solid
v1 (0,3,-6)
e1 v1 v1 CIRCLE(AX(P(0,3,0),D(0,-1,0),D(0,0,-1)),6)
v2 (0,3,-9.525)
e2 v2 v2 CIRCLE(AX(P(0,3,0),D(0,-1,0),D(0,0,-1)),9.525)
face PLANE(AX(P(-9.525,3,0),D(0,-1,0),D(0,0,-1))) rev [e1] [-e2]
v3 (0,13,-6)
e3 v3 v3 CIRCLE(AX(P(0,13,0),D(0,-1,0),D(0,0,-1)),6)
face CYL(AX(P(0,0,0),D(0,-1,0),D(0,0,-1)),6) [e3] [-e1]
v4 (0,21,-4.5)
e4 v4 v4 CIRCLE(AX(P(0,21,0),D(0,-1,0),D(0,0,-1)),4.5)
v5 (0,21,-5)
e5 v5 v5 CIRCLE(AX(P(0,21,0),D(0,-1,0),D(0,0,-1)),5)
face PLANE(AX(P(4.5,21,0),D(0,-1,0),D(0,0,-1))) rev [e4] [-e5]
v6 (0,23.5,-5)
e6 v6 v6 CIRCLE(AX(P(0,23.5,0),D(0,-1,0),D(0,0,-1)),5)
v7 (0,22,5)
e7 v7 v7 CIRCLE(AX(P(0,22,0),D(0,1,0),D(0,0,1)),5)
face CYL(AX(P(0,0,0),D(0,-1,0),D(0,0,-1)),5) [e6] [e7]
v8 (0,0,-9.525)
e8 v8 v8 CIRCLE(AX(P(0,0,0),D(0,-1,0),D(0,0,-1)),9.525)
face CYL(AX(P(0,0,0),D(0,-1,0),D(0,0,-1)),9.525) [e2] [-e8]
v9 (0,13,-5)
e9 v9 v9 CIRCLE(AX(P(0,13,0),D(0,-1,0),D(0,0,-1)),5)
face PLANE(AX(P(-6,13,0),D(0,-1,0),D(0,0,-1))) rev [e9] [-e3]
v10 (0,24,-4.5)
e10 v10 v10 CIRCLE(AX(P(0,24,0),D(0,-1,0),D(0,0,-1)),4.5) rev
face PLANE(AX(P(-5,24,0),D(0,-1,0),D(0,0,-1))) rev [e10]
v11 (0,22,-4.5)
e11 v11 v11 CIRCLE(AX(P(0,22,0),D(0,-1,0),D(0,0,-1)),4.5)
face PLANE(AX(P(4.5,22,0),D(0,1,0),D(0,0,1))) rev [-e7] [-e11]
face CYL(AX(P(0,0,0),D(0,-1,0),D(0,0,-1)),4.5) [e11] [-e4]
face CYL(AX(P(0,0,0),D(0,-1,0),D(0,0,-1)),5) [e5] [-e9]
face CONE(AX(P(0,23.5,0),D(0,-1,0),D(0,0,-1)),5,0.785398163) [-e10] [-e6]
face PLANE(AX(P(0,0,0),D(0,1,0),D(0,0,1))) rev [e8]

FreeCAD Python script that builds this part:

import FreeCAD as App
import Part
import Sketcher

V = App.Vector
Q = App.Units.Quantity


def edges_at(feature, points):
    """Names of the edges that pass closest to the given points."""
    edges = feature.Shape.Edges
    near = lambda p: min(range(len(edges)), key=lambda i: edges[i].distToShape(Part.Vertex(*p))[0])
    return sorted({f"Edge{near(p) + 1}" for p in points})


def add_polygon(sketch, points):
    """Adds a closed chain of lines whose ends are joined by coincident constraints."""
    first, n = sketch.GeometryCount, len(points)
    for a, b in zip(points, points[1:] + points[:1]):
        sketch.addGeometry(Part.LineSegment(App.Vector(*a, 0), App.Vector(*b, 0)), False)
    for i in range(n):
        sketch.addConstraint(Sketcher.Constraint("Coincident", first + i, 2, first + (i + 1) % n, 1))

doc = App.newDocument("Part")
body = doc.addObject("PartDesign::Body", "Body")

# Sketch on XY plane
sketch1 = doc.addObject("Sketcher::SketchObject", "Sketch")
body.addObject(sketch1)
sketch1.AttachmentSupport = (doc.XY_Plane, [""])
sketch1.MapMode = "FlatFace"
add_polygon(sketch1, [(-9.5, 0), (0, 0), (0, 24), (-5, 24), (-5, 13), (-6, 13), (-6, 3), (-9.5, 3)])  # lines 0-7
sketch1.addConstraint(Sketcher.Constraint("Horizontal", 0))
sketch1.addConstraint(Sketcher.Constraint("Vertical", 1))
sketch1.addConstraint(Sketcher.Constraint("Horizontal", 2))
sketch1.addConstraint(Sketcher.Constraint("Vertical", 3))
sketch1.addConstraint(Sketcher.Constraint("Horizontal", 4))
sketch1.addConstraint(Sketcher.Constraint("Vertical", 5))
sketch1.addConstraint(Sketcher.Constraint("Horizontal", 6))
sketch1.addConstraint(Sketcher.Constraint("Vertical", 7))
sketch1.addConstraint(Sketcher.Constraint("Coincident", 0, 2, -1, 1))
sketch1.addConstraint(Sketcher.Constraint("DistanceX", 2, 2, 2, 1, Q("5 mm")))
sketch1.addConstraint(Sketcher.Constraint("DistanceX", 4, 2, 4, 1, Q("1 mm")))
sketch1.addConstraint(Sketcher.Constraint("DistanceY", 1, 1, 1, 2, Q("24 mm")))
sketch1.addConstraint(Sketcher.Constraint("DistanceY", 3, 2, 3, 1, Q("11 mm")))
sketch1.addConstraint(Sketcher.Constraint("DistanceY", 5, 2, 5, 1, Q("10 mm")))
sketch1.addConstraint(Sketcher.Constraint("DistanceX", 0, 1, 0, 2, Q("9.525 mm")))
revolution = doc.addObject("PartDesign::Revolution", "Revolution")
body.addObject(revolution)
revolution.Profile = sketch1
revolution.ReferenceAxis = (sketch1, ["V_Axis"])
revolution.Angle = 360

# Sketch on XY plane
sketch2 = doc.addObject("Sketcher::SketchObject", "Sketch001")
body.addObject(sketch2)
sketch2.AttachmentSupport = (doc.XY_Plane, [""])
sketch2.MapMode = "FlatFace"
add_polygon(sketch2, [(4.5, 22), (4.5, 21), (5.5, 21), (5.5, 22)])  # lines 0-3
sketch2.addConstraint(Sketcher.Constraint("Vertical", 0))
sketch2.addConstraint(Sketcher.Constraint("Horizontal", 1))
sketch2.addConstraint(Sketcher.Constraint("Vertical", 2))
sketch2.addConstraint(Sketcher.Constraint("Horizontal", 3))
sketch2.addConstraint(Sketcher.Constraint("Equal", 3, 0))
sketch2.addConstraint(Sketcher.Constraint("DistanceX", 1, 1, 1, 2, Q("1 mm")))
sketch2.addConstraint(Sketcher.Constraint("DistanceY", -1, 1, 0, 2, Q("21 mm")))
sketch2.addConstraint(Sketcher.Constraint("DistanceX", -1, 1, 0, 2, Q("4.5 mm")))
groove = doc.addObject("PartDesign::Groove", "Groove")
body.addObject(groove)
groove.Profile = sketch2
groove.ReferenceAxis = (sketch2, ["V_Axis"])
groove.Angle = 360
doc.recompute()

chamfer = doc.addObject("PartDesign::Chamfer", "Chamfer")
body.addObject(chamfer)
chamfer.Base = (groove, edges_at(groove, [(0, 24, 5)]))
chamfer.Size = 0.5

doc.recompute()
